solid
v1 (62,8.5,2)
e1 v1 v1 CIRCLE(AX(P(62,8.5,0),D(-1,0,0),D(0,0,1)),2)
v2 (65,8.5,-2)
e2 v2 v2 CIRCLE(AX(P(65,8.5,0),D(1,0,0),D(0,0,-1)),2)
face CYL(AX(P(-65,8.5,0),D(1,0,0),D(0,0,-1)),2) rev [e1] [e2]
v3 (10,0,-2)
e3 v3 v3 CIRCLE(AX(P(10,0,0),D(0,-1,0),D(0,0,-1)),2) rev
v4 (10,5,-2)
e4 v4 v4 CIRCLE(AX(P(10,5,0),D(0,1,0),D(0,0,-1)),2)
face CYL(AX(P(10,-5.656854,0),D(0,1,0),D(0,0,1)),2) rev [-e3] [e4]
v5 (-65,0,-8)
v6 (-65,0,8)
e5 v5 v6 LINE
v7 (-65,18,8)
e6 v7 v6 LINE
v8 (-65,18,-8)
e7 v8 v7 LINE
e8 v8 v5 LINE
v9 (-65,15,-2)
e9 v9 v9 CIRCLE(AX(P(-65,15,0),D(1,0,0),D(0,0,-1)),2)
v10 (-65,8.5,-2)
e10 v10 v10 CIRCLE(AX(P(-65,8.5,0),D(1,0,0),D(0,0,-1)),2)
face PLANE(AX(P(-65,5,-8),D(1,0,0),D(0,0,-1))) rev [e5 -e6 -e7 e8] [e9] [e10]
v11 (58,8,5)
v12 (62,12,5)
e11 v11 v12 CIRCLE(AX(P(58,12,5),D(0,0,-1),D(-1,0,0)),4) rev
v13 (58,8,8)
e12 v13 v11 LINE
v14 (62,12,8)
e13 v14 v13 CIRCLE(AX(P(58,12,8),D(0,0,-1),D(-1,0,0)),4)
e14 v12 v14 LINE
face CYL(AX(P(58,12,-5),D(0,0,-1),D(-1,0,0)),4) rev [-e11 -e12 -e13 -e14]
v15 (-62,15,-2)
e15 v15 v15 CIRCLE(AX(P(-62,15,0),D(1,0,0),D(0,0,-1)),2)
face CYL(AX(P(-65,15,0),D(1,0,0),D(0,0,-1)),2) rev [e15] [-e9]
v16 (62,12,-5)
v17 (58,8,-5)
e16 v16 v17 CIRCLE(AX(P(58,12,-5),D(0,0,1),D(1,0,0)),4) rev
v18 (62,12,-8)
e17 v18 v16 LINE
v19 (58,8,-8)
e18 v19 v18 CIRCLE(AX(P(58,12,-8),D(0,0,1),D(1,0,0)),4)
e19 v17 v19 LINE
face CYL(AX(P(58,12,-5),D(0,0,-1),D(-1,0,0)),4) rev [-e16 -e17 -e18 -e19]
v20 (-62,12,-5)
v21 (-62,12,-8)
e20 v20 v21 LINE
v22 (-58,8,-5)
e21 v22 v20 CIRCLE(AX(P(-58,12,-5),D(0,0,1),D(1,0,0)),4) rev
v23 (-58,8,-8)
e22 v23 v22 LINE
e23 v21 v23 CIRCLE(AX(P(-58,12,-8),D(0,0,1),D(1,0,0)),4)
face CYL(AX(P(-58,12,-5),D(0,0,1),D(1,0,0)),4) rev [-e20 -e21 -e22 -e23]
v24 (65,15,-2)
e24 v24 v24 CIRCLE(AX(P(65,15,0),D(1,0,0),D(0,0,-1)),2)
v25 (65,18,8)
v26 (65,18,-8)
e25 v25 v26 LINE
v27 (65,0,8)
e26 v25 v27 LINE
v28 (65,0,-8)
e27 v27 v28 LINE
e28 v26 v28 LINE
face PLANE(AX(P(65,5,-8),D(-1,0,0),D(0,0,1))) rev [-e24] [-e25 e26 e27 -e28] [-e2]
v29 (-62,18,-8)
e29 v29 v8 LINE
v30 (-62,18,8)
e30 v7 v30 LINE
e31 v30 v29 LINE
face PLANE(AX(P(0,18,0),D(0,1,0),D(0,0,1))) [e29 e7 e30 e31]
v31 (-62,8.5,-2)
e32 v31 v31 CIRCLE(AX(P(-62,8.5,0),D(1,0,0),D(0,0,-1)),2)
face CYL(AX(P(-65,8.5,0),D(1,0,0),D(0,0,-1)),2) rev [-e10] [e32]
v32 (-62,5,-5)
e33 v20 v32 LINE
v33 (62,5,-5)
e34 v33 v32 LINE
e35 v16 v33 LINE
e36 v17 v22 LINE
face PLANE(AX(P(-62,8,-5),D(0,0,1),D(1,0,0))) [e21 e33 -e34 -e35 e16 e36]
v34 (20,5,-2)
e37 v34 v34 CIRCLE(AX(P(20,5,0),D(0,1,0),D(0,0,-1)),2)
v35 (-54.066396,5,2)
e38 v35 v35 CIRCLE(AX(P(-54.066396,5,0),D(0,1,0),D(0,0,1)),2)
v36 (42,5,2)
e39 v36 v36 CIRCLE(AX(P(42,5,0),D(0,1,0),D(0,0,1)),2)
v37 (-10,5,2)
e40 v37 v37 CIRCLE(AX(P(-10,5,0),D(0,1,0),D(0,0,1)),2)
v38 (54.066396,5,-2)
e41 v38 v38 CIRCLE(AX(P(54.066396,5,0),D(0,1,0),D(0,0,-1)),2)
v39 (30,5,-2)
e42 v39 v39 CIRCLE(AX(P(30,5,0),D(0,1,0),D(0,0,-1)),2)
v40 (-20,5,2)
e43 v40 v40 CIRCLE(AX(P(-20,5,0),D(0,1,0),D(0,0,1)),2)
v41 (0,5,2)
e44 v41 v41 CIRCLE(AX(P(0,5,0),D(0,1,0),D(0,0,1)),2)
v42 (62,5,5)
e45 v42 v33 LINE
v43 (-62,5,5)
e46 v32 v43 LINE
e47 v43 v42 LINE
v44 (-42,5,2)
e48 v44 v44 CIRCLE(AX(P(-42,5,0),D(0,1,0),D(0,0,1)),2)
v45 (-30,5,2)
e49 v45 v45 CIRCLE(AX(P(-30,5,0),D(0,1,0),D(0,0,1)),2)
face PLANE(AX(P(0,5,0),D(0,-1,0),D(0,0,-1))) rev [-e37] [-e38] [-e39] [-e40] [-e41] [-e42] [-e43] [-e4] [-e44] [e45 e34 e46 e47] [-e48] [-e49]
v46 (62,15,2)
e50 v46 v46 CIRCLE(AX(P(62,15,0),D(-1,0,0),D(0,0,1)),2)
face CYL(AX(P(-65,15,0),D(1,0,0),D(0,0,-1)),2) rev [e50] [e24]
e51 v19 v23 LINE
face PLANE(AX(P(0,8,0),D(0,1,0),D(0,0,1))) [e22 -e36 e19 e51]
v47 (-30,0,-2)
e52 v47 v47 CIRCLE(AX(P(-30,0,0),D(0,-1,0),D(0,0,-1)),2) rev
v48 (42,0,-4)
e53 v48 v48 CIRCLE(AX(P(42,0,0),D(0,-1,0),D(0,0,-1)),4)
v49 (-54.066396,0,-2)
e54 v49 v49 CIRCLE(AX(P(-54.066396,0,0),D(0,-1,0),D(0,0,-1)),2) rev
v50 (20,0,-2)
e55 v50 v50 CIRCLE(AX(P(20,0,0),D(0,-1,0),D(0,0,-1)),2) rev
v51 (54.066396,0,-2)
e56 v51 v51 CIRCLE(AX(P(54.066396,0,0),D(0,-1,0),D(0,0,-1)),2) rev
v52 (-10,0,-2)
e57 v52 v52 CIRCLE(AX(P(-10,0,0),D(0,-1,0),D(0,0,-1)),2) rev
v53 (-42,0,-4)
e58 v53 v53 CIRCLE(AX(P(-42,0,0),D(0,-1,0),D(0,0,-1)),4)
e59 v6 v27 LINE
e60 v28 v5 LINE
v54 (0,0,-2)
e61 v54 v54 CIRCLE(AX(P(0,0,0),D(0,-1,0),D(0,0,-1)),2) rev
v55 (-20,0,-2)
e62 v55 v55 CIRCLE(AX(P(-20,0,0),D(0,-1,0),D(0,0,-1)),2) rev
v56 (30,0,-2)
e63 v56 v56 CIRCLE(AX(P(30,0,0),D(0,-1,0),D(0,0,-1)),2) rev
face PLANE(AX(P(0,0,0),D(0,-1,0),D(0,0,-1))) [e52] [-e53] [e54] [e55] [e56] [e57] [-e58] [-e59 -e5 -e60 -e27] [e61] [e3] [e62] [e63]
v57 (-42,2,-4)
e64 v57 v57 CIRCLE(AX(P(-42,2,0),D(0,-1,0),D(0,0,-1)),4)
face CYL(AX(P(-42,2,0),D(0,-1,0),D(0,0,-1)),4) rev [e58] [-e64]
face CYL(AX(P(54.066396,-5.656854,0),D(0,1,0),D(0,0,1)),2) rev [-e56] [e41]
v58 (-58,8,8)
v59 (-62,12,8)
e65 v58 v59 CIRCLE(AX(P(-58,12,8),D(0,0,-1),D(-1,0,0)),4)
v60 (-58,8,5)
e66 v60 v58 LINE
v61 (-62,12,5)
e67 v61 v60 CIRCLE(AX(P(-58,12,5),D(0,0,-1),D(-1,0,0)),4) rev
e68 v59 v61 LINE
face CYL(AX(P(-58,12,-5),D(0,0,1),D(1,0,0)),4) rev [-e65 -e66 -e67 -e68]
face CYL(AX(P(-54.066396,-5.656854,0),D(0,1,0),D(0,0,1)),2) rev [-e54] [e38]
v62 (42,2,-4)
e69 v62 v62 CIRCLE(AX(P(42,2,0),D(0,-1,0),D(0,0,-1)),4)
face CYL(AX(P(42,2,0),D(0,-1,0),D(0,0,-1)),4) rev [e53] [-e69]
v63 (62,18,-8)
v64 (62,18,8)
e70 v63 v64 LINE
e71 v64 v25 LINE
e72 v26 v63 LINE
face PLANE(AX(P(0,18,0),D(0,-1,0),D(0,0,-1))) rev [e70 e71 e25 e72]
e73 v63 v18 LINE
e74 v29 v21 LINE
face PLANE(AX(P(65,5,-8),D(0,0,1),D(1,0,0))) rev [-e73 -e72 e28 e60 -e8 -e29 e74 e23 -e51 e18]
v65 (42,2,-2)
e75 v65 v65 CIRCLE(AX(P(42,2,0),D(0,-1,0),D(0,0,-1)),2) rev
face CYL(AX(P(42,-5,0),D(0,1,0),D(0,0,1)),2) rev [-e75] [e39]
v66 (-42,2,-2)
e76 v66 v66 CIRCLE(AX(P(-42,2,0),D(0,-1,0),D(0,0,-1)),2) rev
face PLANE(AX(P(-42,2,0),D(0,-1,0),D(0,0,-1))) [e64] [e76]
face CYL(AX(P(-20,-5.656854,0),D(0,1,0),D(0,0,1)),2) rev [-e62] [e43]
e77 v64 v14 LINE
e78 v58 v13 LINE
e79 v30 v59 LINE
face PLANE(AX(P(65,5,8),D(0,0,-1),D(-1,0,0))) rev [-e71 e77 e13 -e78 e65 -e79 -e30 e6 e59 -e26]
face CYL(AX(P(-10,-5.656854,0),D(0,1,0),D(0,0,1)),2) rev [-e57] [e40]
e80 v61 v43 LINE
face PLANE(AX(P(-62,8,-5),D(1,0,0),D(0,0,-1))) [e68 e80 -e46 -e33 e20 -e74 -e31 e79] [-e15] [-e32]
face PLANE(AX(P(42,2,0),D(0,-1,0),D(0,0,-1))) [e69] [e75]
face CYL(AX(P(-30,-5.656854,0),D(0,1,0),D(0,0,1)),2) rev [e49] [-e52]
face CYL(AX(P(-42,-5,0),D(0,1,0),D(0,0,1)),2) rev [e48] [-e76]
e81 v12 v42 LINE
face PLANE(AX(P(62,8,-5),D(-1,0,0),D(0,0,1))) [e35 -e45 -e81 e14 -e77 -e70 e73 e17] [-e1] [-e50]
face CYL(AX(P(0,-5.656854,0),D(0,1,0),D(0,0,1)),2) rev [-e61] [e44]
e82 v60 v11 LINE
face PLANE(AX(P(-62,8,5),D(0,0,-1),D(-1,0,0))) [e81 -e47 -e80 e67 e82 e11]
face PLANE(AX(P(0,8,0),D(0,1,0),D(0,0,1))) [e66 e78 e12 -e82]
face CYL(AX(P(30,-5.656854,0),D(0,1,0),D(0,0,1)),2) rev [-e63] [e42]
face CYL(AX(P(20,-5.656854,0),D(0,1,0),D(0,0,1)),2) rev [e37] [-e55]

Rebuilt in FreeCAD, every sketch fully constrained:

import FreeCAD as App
import Part
import Sketcher


def edges_at(feature, points):
    """Names of the edges that pass closest to the given points."""
    edges = feature.Shape.Edges
    near = lambda p: min(range(len(edges)), key=lambda i: edges[i].distToShape(Part.Vertex(*p))[0])
    return sorted({f"Edge{near(p) + 1}" for p in points})


def add_polygon(sketch, points):
    """Adds a closed chain of lines whose ends are joined by coincident constraints."""
    first, n = sketch.GeometryCount, len(points)
    for a, b in zip(points, points[1:] + points[:1]):
        sketch.addGeometry(Part.LineSegment(App.Vector(*a, 0), App.Vector(*b, 0)), False)
    for i in range(n):
        sketch.addConstraint(Sketcher.Constraint("Coincident", first + i, 2, first + (i + 1) % n, 1))

doc = App.newDocument("Part")
body = doc.addObject("PartDesign::Body", "Body")

# Sketch on XZ plane
sketch1 = body.newObject("Sketcher::SketchObject", "Sketch")
sketch1.AttachmentSupport = (doc.getObject("XZ_Plane"), [""])
sketch1.MapMode = "FlatFace"
add_polygon(sketch1, [(-65, -8), (-65, 8), (65, 8), (65, -8)])  # lines 0-3
sketch1.addConstraint(Sketcher.Constraint("Vertical", 0))
sketch1.addConstraint(Sketcher.Constraint("Horizontal", 1))
sketch1.addConstraint(Sketcher.Constraint("Vertical", 2))
sketch1.addConstraint(Sketcher.Constraint("Horizontal", 3))
sketch1.addConstraint(Sketcher.Constraint("Symmetric", 0, 2, 2, 2, -1, 1))
sketch1.addConstraint(Sketcher.Constraint("DistanceX", 1, 1, 1, 2, 130.0))
sketch1.addConstraint(Sketcher.Constraint("DistanceY", 0, 1, 0, 2, 16.0))
pad1 = body.newObject("PartDesign::Pad", "Pad")
pad1.Profile = sketch1
pad1.Length = 5
pad1.Reversed = True

# Sketch on XZ plane
sketch2 = body.newObject("Sketcher::SketchObject", "Sketch001")
sketch2.AttachmentSupport = (doc.getObject("XZ_Plane"), [""])
sketch2.MapMode = "FlatFace"
sketch2.AttachmentOffset = App.Placement(App.Vector(0, 0, -5), App.Rotation())
add_polygon(sketch2, [(-65, -8), (-65, 8), (65, 8), (65, -8)])  # lines 0-3
add_polygon(sketch2, [(62, 5), (-62, 5), (-62, -5), (62, -5)])  # lines 4-7
sketch2.addConstraint(Sketcher.Constraint("Vertical", 0))
sketch2.addConstraint(Sketcher.Constraint("Horizontal", 1))
sketch2.addConstraint(Sketcher.Constraint("Vertical", 2))
sketch2.addConstraint(Sketcher.Constraint("Horizontal", 3))
sketch2.addConstraint(Sketcher.Constraint("Horizontal", 4))
sketch2.addConstraint(Sketcher.Constraint("Vertical", 5))
sketch2.addConstraint(Sketcher.Constraint("Horizontal", 6))
sketch2.addConstraint(Sketcher.Constraint("Vertical", 7))
sketch2.addConstraint(Sketcher.Constraint("Symmetric", 0, 2, 2, 2, -1, 1))
sketch2.addConstraint(Sketcher.Constraint("Symmetric", 4, 2, 6, 2, -1, 1))
sketch2.addConstraint(Sketcher.Constraint("DistanceX", 1, 1, 1, 2, 130.0))
sketch2.addConstraint(Sketcher.Constraint("DistanceX", 4, 2, 4, 1, 124.0))
sketch2.addConstraint(Sketcher.Constraint("DistanceY", 0, 1, 0, 2, 16.0))
sketch2.addConstraint(Sketcher.Constraint("DistanceY", 5, 2, 5, 1, 10.0))
pad2 = body.newObject("PartDesign::Pad", "Pad001")
pad2.Profile = sketch2
pad2.Length = 3
pad2.Reversed = True

# Sketch on XZ plane
sketch3 = body.newObject("Sketcher::SketchObject", "Sketch002")
sketch3.AttachmentSupport = (doc.getObject("XZ_Plane"), [""])
sketch3.MapMode = "FlatFace"
sketch3.AttachmentOffset = App.Placement(App.Vector(0, 0, -8), App.Rotation())
add_polygon(sketch3, [(-65, -8), (-65, 8), (-62, 8), (-62, -8)])  # lines 0-3
add_polygon(sketch3, [(62, -8), (62, 8), (65, 8), (65, -8)])  # lines 4-7
sketch3.addConstraint(Sketcher.Constraint("Vertical", 0))
sketch3.addConstraint(Sketcher.Constraint("Horizontal", 1))
sketch3.addConstraint(Sketcher.Constraint("Vertical", 2))
sketch3.addConstraint(Sketcher.Constraint("Horizontal", 3))
sketch3.addConstraint(Sketcher.Constraint("Vertical", 4))
sketch3.addConstraint(Sketcher.Constraint("Horizontal", 5))
sketch3.addConstraint(Sketcher.Constraint("Vertical", 6))
sketch3.addConstraint(Sketcher.Constraint("Horizontal", 7))
sketch3.addConstraint(Sketcher.Constraint("Symmetric", 2, 2, 4, 2, -1, 1))
sketch3.addConstraint(Sketcher.Constraint("Symmetric", 0, 2, 6, 2, -1, 1))
sketch3.addConstraint(Sketcher.Constraint("Horizontal", 1, 2, 4, 2))
sketch3.addConstraint(Sketcher.Constraint("DistanceX", 1, 1, 1, 2, 3.0))
sketch3.addConstraint(Sketcher.Constraint("DistanceY", 0, 1, 0, 2, 16.0))
sketch3.addConstraint(Sketcher.Constraint("DistanceX", 0, 2, -1, 1, 65.0))
pad3 = body.newObject("PartDesign::Pad", "Pad002")
pad3.Profile = sketch3
pad3.Length = 10
pad3.Reversed = True
doc.recompute()

fillet = body.newObject("PartDesign::Fillet", "Fillet")
fillet.Base = (pad3, edges_at(pad3, [
    (-62, 8, -6.5),
    (-62, 8, 6.5),
    (62, 8, -6.5),
    (62, 8, 6.5),
]))
fillet.Radius = 4

# Sketch on XZ plane
sketch4 = body.newObject("Sketcher::SketchObject", "Sketch003")
sketch4.AttachmentSupport = (doc.getObject("XZ_Plane"), [""])
sketch4.MapMode = "FlatFace"
sketch4.AttachmentOffset = App.Placement(App.Vector(0, 0, -5), App.Rotation())
sketch4.addGeometry(Part.Circle(App.Vector(42, 0, 0), App.Vector(0, 0, 1), 2), False)
sketch4.addGeometry(Part.Circle(App.Vector(-42, 0, 0), App.Vector(0, 0, 1), 2), False)
sketch4.addConstraint(Sketcher.Constraint("Equal", 0, 1))
sketch4.addConstraint(Sketcher.Constraint("Symmetric", 0, 3, 1, 3, -1, 1))
sketch4.addConstraint(Sketcher.Constraint("PointOnObject", 0, 3, -1))
sketch4.addConstraint(Sketcher.Constraint("Diameter", 0, 4.0))
sketch4.addConstraint(Sketcher.Constraint("DistanceX", -1, 1, 0, 3, 42.0))
pocket1 = body.newObject("PartDesign::Pocket", "Pocket")
pocket1.Profile = sketch4
pocket1.Length = 10
pocket1.Reversed = True

# Sketch on XZ plane
sketch5 = body.newObject("Sketcher::SketchObject", "Sketch004")
sketch5.AttachmentSupport = (doc.getObject("XZ_Plane"), [""])
sketch5.MapMode = "FlatFace"
sketch5.addGeometry(Part.Circle(App.Vector(42, 0, 0), App.Vector(0, 0, 1), 4), False)
sketch5.addGeometry(Part.Circle(App.Vector(-42, 0, 0), App.Vector(0, 0, 1), 4), False)
sketch5.addConstraint(Sketcher.Constraint("Equal", 0, 1))
sketch5.addConstraint(Sketcher.Constraint("Symmetric", 0, 3, 1, 3, -1, 1))
sketch5.addConstraint(Sketcher.Constraint("PointOnObject", 0, 3, -1))
sketch5.addConstraint(Sketcher.Constraint("Diameter", 0, 8.0))
sketch5.addConstraint(Sketcher.Constraint("DistanceX", -1, 1, 0, 3, 42.0))
pocket2 = body.newObject("PartDesign::Pocket", "Pocket001")
pocket2.Profile = sketch5
pocket2.Length = 2

# Sketch on XZ plane
sketch6 = body.newObject("Sketcher::SketchObject", "Sketch005")
sketch6.AttachmentSupport = (doc.getObject("XZ_Plane"), [""])
sketch6.MapMode = "FlatFace"
sketch6.AttachmentOffset = App.Placement(App.Vector(0, 0, -5), App.Rotation())
sketch6.addGeometry(Part.Circle(App.Vector(0, 0, 0), App.Vector(0, 0, 1), 2), False)
sketch6.addGeometry(Part.Circle(App.Vector(-10, 0, 0), App.Vector(0, 0, 1), 2), False)
sketch6.addGeometry(Part.Circle(App.Vector(-20, 0, 0), App.Vector(0, 0, 1), 2), False)
sketch6.addGeometry(Part.Circle(App.Vector(-30, 0, 0), App.Vector(0, 0, 1), 2), False)
sketch6.addGeometry(Part.Circle(App.Vector(-54.066396, 0, 0), App.Vector(0, 0, 1), 2), False)
sketch6.addGeometry(Part.Circle(App.Vector(54.066396, 0, 0), App.Vector(0, 0, 1), 2), False)
sketch6.addGeometry(Part.Circle(App.Vector(30, 0, 0), App.Vector(0, 0, 1), 2), False)
sketch6.addGeometry(Part.Circle(App.Vector(20, 0, 0), App.Vector(0, 0, 1), 2), False)
sketch6.addGeometry(Part.Circle(App.Vector(10, 0, 0), App.Vector(0, 0, 1), 2), False)
sketch6.addConstraint(Sketcher.Constraint("Coincident", 0, 3, -1, 1))
sketch6.addConstraint(Sketcher.Constraint("Equal", 0, 1))
sketch6.addConstraint(Sketcher.Constraint("Equal", 1, 2))
sketch6.addConstraint(Sketcher.Constraint("Equal", 2, 3))
sketch6.addConstraint(Sketcher.Constraint("Equal", 3, 4))
sketch6.addConstraint(Sketcher.Constraint("Equal", 4, 5))
sketch6.addConstraint(Sketcher.Constraint("Equal", 5, 6))
sketch6.addConstraint(Sketcher.Constraint("Equal", 6, 7))
sketch6.addConstraint(Sketcher.Constraint("Equal", 7, 8))
sketch6.addConstraint(Sketcher.Constraint("Symmetric", 4, 3, 5, 3, -1, 1))
sketch6.addConstraint(Sketcher.Constraint("Symmetric", 3, 3, 6, 3, -1, 1))
sketch6.addConstraint(Sketcher.Constraint("Symmetric", 2, 3, 7, 3, -1, 1))
sketch6.addConstraint(Sketcher.Constraint("Symmetric", 1, 3, 8, 3, -1, 1))
sketch6.addConstraint(Sketcher.Constraint("PointOnObject", 1, 3, -1))
sketch6.addConstraint(Sketcher.Constraint("PointOnObject", 2, 3, -1))
sketch6.addConstraint(Sketcher.Constraint("PointOnObject", 3, 3, -1))
sketch6.addConstraint(Sketcher.Constraint("PointOnObject", 4, 3, -1))
sketch6.addConstraint(Sketcher.Constraint("Diameter", 0, 4.0))
sketch6.addConstraint(Sketcher.Constraint("DistanceX", 1, 3, -1, 1, 10.0))
sketch6.addConstraint(Sketcher.Constraint("DistanceX", 2, 3, -1, 1, 20.0))
sketch6.addConstraint(Sketcher.Constraint("DistanceX", 3, 3, -1, 1, 30.0))
sketch6.addConstraint(Sketcher.Constraint("DistanceX", 4, 3, 5, 3, 108.132792))
pocket3 = body.newObject("PartDesign::Pocket", "Pocket002")
pocket3.Profile = sketch6
pocket3.Length = 5
pocket3.Reversed = True

# Sketch on YZ plane
sketch7 = body.newObject("Sketcher::SketchObject", "Sketch006")
sketch7.AttachmentSupport = (doc.getObject("YZ_Plane"), [""])
sketch7.MapMode = "FlatFace"
sketch7.AttachmentOffset = App.Placement(App.Vector(0, 0, -62), App.Rotation())
sketch7.addGeometry(Part.Circle(App.Vector(8.5, 0, 0), App.Vector(0, 0, 1), 2), False)
sketch7.addGeometry(Part.Circle(App.Vector(15, 0, 0), App.Vector(0, 0, 1), 2), False)
sketch7.addConstraint(Sketcher.Constraint("Equal", 0, 1))
sketch7.addConstraint(Sketcher.Constraint("PointOnObject", 0, 3, -1))
sketch7.addConstraint(Sketcher.Constraint("PointOnObject", 1, 3, -1))
sketch7.addConstraint(Sketcher.Constraint("Diameter", 0, 4.0))
sketch7.addConstraint(Sketcher.Constraint("DistanceX", -1, 1, 1, 3, 15.0))
sketch7.addConstraint(Sketcher.Constraint("DistanceX", -1, 1, 0, 3, 8.5))
pocket4 = body.newObject("PartDesign::Pocket", "Pocket003")
pocket4.Profile = sketch7
pocket4.Type = "ThroughAll"
pocket4.Midplane = True

doc.recompute()
